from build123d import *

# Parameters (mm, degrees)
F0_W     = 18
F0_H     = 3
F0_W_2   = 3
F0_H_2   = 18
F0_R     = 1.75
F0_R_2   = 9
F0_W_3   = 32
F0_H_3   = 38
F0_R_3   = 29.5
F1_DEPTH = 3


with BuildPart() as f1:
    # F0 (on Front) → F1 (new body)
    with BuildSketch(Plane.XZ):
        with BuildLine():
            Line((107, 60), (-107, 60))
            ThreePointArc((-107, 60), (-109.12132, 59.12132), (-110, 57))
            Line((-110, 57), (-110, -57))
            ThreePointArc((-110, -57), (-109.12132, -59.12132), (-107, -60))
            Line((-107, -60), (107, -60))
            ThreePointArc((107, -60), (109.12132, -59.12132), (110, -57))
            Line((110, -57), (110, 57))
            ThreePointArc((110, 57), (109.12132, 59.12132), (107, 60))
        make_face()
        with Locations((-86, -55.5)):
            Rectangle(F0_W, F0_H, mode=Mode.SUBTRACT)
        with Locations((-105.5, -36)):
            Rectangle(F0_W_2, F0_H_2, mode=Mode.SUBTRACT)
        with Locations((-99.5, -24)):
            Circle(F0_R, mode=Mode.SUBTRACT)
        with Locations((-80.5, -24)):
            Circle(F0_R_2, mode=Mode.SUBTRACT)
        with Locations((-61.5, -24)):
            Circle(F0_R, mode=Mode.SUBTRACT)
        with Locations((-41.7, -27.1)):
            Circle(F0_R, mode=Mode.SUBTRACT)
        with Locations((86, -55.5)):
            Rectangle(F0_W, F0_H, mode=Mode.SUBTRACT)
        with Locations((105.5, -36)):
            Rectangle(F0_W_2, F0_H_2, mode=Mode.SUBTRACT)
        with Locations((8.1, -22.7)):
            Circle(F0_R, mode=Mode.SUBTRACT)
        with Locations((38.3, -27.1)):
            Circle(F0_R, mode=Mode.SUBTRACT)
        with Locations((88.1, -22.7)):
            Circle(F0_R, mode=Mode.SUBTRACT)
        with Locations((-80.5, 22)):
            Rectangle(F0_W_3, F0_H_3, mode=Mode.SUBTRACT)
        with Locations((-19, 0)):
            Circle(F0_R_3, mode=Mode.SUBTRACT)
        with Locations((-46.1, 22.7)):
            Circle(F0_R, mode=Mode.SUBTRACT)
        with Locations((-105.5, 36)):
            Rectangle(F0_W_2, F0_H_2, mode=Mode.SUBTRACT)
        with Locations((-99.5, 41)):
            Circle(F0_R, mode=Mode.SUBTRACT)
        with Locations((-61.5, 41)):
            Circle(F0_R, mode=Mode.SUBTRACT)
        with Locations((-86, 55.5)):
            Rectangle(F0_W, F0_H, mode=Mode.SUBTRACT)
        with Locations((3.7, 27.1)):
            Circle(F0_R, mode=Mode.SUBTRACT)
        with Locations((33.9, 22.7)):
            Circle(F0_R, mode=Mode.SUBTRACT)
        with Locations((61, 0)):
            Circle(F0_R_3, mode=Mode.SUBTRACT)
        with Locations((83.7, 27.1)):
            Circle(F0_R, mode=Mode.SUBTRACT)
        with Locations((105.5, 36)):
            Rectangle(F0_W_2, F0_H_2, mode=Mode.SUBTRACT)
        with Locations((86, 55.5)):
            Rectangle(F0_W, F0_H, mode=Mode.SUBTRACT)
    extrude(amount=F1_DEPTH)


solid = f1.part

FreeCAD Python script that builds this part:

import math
import FreeCAD as App
import Part
import Sketcher
Q = App.Units.Quantity


def add_polygon(sketch, points):
    """Adds a closed chain of lines whose ends are joined by coincident constraints."""
    first, n = sketch.GeometryCount, len(points)
    for a, b in zip(points, points[1:] + points[:1]):
        sketch.addGeometry(Part.LineSegment(App.Vector(*a, 0), App.Vector(*b, 0)), False)
    for i in range(n):
        sketch.addConstraint(Sketcher.Constraint("Coincident", first + i, 2, first + (i + 1) % n, 1))

doc = App.newDocument("Part")
params = doc.addObject("Spreadsheet::Sheet", "Params")
for row, (alias, value) in enumerate([
    ("sketch1_diameter", "18 mm"),
    ("sketch1_diameter2", "59 mm"),
    ("sketch1_radius", "3.000001 mm"),
    ("sketch1_diameter3", "3.5 mm"),
    ("sketch1_width", "214 mm"),
    ("pad1_length", "3 mm"),
], start=1):
    params.set(f"A{row}", alias)
    params.set(f"B{row}", "=" + value)
    params.setAlias(f"B{row}", alias)

body = doc.addObject("PartDesign::Body", "Body")

sketch1 = doc.addObject("Sketcher::SketchObject", "Sketch")
body.addObject(sketch1)
sketch1.AttachmentSupport = (doc.XZ_Plane, [""])
sketch1.MapMode = "FlatFace"
sketch1.addGeometry(Part.LineSegment(App.Vector(107, 60, 0), App.Vector(-107, 60, 0)), False)
sketch1.addGeometry(Part.ArcOfCircle(Part.Circle(App.Vector(-107, 57, 0), App.Vector(0, 0, 1), 3), math.radians(90), math.radians(180)), False)
sketch1.addGeometry(Part.LineSegment(App.Vector(-110, 57, 0), App.Vector(-110, -57, 0)), False)
sketch1.addGeometry(Part.ArcOfCircle(Part.Circle(App.Vector(-107, -57, 0), App.Vector(0, 0, 1), 3), math.radians(-180), math.radians(-90)), False)
sketch1.addGeometry(Part.LineSegment(App.Vector(-107, -60, 0), App.Vector(107, -60, 0)), False)
sketch1.addGeometry(Part.ArcOfCircle(Part.Circle(App.Vector(107, -57, 0), App.Vector(0, 0, 1), 3), math.radians(-90), math.radians(0)), False)
sketch1.addGeometry(Part.LineSegment(App.Vector(110, -57, 0), App.Vector(110, 57, 0)), False)
sketch1.addGeometry(Part.ArcOfCircle(Part.Circle(App.Vector(107, 57, 0), App.Vector(0, 0, 1), 3), math.radians(0), math.radians(90)), False)
add_polygon(sketch1, [(-77, -57), (-95, -57), (-95, -54), (-77, -54)])
add_polygon(sketch1, [(-104, -45), (-107, -45), (-107, -27), (-104, -27)])
sketch1.addGeometry(Part.Circle(App.Vector(-99.5, -24, 0), App.Vector(0, 0, 1), 1.8), False)
sketch1.addGeometry(Part.Circle(App.Vector(-80.5, -24, 0), App.Vector(0, 0, 1), 9), False)
sketch1.addGeometry(Part.Circle(App.Vector(-61.5, -24, 0), App.Vector(0, 0, 1), 1.8), False)
sketch1.addGeometry(Part.Circle(App.Vector(-41.7, -27.1, 0), App.Vector(0, 0, 1), 1.8), False)
add_polygon(sketch1, [(95, -57), (77, -57), (77, -54), (95, -54)])
add_polygon(sketch1, [(107, -45), (104, -45), (104, -27), (107, -27)])
sketch1.addGeometry(Part.Circle(App.Vector(8.1, -22.7, 0), App.Vector(0, 0, 1), 1.8), False)
sketch1.addGeometry(Part.Circle(App.Vector(38.3, -27.1, 0), App.Vector(0, 0, 1), 1.8), False)
sketch1.addGeometry(Part.Circle(App.Vector(88.1, -22.7, 0), App.Vector(0, 0, 1), 1.8), False)
add_polygon(sketch1, [(-64.5, 3), (-96.5, 3), (-96.5, 41), (-64.5, 41)])
sketch1.addGeometry(Part.Circle(App.Vector(-19, 0, 0), App.Vector(0, 0, 1), 29.5), False)
sketch1.addGeometry(Part.Circle(App.Vector(-46.1, 22.7, 0), App.Vector(0, 0, 1), 1.8), False)
add_polygon(sketch1, [(-104, 27), (-107, 27), (-107, 45), (-104, 45)])
sketch1.addGeometry(Part.Circle(App.Vector(-99.5, 41, 0), App.Vector(0, 0, 1), 1.8), False)
sketch1.addGeometry(Part.Circle(App.Vector(-61.5, 41, 0), App.Vector(0, 0, 1), 1.8), False)
add_polygon(sketch1, [(-77, 54), (-95, 54), (-95, 57), (-77, 57)])
sketch1.addGeometry(Part.Circle(App.Vector(3.7, 27.1, 0), App.Vector(0, 0, 1), 1.8), False)
sketch1.addGeometry(Part.Circle(App.Vector(33.9, 22.7, 0), App.Vector(0, 0, 1), 1.8), False)
sketch1.addGeometry(Part.Circle(App.Vector(61, 0, 0), App.Vector(0, 0, 1), 29.5), False)
sketch1.addGeometry(Part.Circle(App.Vector(83.7, 27.1, 0), App.Vector(0, 0, 1), 1.8), False)
add_polygon(sketch1, [(107, 27), (104, 27), (104, 45), (107, 45)])
add_polygon(sketch1, [(95, 54), (77, 54), (77, 57), (95, 57)])
sketch1.addConstraint(Sketcher.Constraint("Tangent", 0, 2, 1, 1))
sketch1.addConstraint(Sketcher.Constraint("Tangent", 1, 2, 2, 1))
sketch1.addConstraint(Sketcher.Constraint("Tangent", 2, 2, 3, 1))
sketch1.addConstraint(Sketcher.Constraint("Tangent", 3, 2, 4, 1))
sketch1.addConstraint(Sketcher.Constraint("Tangent", 4, 2, 5, 1))
sketch1.addConstraint(Sketcher.Constraint("Tangent", 5, 2, 6, 1))
sketch1.addConstraint(Sketcher.Constraint("Tangent", 6, 2, 7, 1))
sketch1.addConstraint(Sketcher.Constraint("Tangent", 7, 2, 0, 1))
sketch1.addConstraint(Sketcher.Constraint("Horizontal", 0))
sketch1.addConstraint(Sketcher.Constraint("Vertical", 2))
sketch1.addConstraint(Sketcher.Constraint("Horizontal", 4))
sketch1.addConstraint(Sketcher.Constraint("Vertical", 6))
sketch1.addConstraint(Sketcher.Constraint("Horizontal", 8))
sketch1.addConstraint(Sketcher.Constraint("Vertical", 9))
sketch1.addConstraint(Sketcher.Constraint("Horizontal", 10))
sketch1.addConstraint(Sketcher.Constraint("Vertical", 11))
sketch1.addConstraint(Sketcher.Constraint("Horizontal", 12))
sketch1.addConstraint(Sketcher.Constraint("Vertical", 13))
sketch1.addConstraint(Sketcher.Constraint("Horizontal", 14))
sketch1.addConstraint(Sketcher.Constraint("Vertical", 15))
sketch1.addConstraint(Sketcher.Constraint("Horizontal", 20))
sketch1.addConstraint(Sketcher.Constraint("Vertical", 21))
sketch1.addConstraint(Sketcher.Constraint("Horizontal", 22))
sketch1.addConstraint(Sketcher.Constraint("Vertical", 23))
sketch1.addConstraint(Sketcher.Constraint("Horizontal", 24))
sketch1.addConstraint(Sketcher.Constraint("Vertical", 25))
sketch1.addConstraint(Sketcher.Constraint("Horizontal", 26))
sketch1.addConstraint(Sketcher.Constraint("Vertical", 27))
sketch1.addConstraint(Sketcher.Constraint("Horizontal", 31))
sketch1.addConstraint(Sketcher.Constraint("Vertical", 32))
sketch1.addConstraint(Sketcher.Constraint("Horizontal", 33))
sketch1.addConstraint(Sketcher.Constraint("Vertical", 34))
sketch1.addConstraint(Sketcher.Constraint("Horizontal", 37))
sketch1.addConstraint(Sketcher.Constraint("Vertical", 38))
sketch1.addConstraint(Sketcher.Constraint("Horizontal", 39))
sketch1.addConstraint(Sketcher.Constraint("Vertical", 40))
sketch1.addConstraint(Sketcher.Constraint("Horizontal", 43))
sketch1.addConstraint(Sketcher.Constraint("Vertical", 44))
sketch1.addConstraint(Sketcher.Constraint("Horizontal", 45))
sketch1.addConstraint(Sketcher.Constraint("Vertical", 46))
sketch1.addConstraint(Sketcher.Constraint("Horizontal", 51))
sketch1.addConstraint(Sketcher.Constraint("Vertical", 52))
sketch1.addConstraint(Sketcher.Constraint("Horizontal", 53))
sketch1.addConstraint(Sketcher.Constraint("Vertical", 54))
sketch1.addConstraint(Sketcher.Constraint("Horizontal", 55))
sketch1.addConstraint(Sketcher.Constraint("Vertical", 56))
sketch1.addConstraint(Sketcher.Constraint("Horizontal", 57))
sketch1.addConstraint(Sketcher.Constraint("Vertical", 58))
sketch1.addConstraint(Sketcher.Constraint("Equal", 1, 3))
sketch1.addConstraint(Sketcher.Constraint("Equal", 3, 5))
sketch1.addConstraint(Sketcher.Constraint("Equal", 5, 7))
sketch1.addConstraint(Sketcher.Constraint("Equal", 16, 18))
sketch1.addConstraint(Sketcher.Constraint("Equal", 18, 19))
sketch1.addConstraint(Sketcher.Constraint("Equal", 19, 28))
sketch1.addConstraint(Sketcher.Constraint("Equal", 28, 29))
sketch1.addConstraint(Sketcher.Constraint("Equal", 29, 30))
sketch1.addConstraint(Sketcher.Constraint("Equal", 30, 36))
sketch1.addConstraint(Sketcher.Constraint("Equal", 36, 41))
sketch1.addConstraint(Sketcher.Constraint("Equal", 41, 42))
sketch1.addConstraint(Sketcher.Constraint("Equal", 42, 47))
sketch1.addConstraint(Sketcher.Constraint("Equal", 47, 48))
sketch1.addConstraint(Sketcher.Constraint("Equal", 35, 49))
sketch1.addConstraint(Sketcher.Constraint("Equal", 48, 50))
sketch1.addConstraint(Sketcher.Constraint("Symmetric", 1, 3, 5, 3, -1, 1))
sketch1.addConstraint(Sketcher.Constraint("Symmetric", 26, 2, 37, 2, -1, 1))
sketch1.addConstraint(Sketcher.Constraint("Symmetric", 24, 2, 39, 2, -1, 1))
sketch1.addConstraint(Sketcher.Constraint("Symmetric", 22, 2, 43, 2, -1, 1))
sketch1.addConstraint(Sketcher.Constraint("Symmetric", 20, 2, 45, 2, -1, 1))
sketch1.addConstraint(Sketcher.Constraint("Symmetric", 14, 2, 51, 2, -1, 1))
sketch1.addConstraint(Sketcher.Constraint("Symmetric", 12, 2, 53, 2, -1, 1))
sketch1.addConstraint(Sketcher.Constraint("Symmetric", 10, 2, 55, 2, -1, 1))
sketch1.addConstraint(Sketcher.Constraint("Symmetric", 8, 2, 57, 2, -1, 1))
sketch1.addConstraint(Sketcher.Constraint("Symmetric", 11, 2, 20, 2, -2))
sketch1.addConstraint(Sketcher.Constraint("Symmetric", 9, 2, 22, 2, -2))
sketch1.addConstraint(Sketcher.Constraint("Symmetric", 15, 2, 24, 2, -2))
sketch1.addConstraint(Sketcher.Constraint("Symmetric", 13, 2, 26, 2, -2))
sketch1.addConstraint(Sketcher.Constraint("PointOnObject", 35, 3, -1))
sketch1.addConstraint(Sketcher.Constraint("PointOnObject", 49, 3, -1))
sketch1.addConstraint(Sketcher.Constraint("Horizontal", 16, 3, 17, 3))
sketch1.addConstraint(Sketcher.Constraint("Horizontal", 17, 3, 18, 3))
sketch1.addConstraint(Sketcher.Constraint("Horizontal", 19, 3, 29, 3))
sketch1.addConstraint(Sketcher.Constraint("Horizontal", 28, 3, 30, 3))
sketch1.addConstraint(Sketcher.Constraint("Horizontal", 41, 3, 42, 3))
sketch1.addConstraint(Sketcher.Constraint("Horizontal", 36, 3, 48, 3))
sketch1.addConstraint(Sketcher.Constraint("Horizontal", 47, 3, 50, 3))
sketch1.addConstraint(Sketcher.Constraint("Horizontal", 5, 2, 8, 2))
sketch1.addConstraint(Sketcher.Constraint("Horizontal", 42, 3, 32, 2))
sketch1.addConstraint(Sketcher.Constraint("Vertical", 16, 3, 41, 3))
sketch1.addConstraint(Sketcher.Constraint("Vertical", 18, 3, 42, 3))
sketch1.addConstraint(Sketcher.Constraint("Vertical", 3, 2, 12, 2))
sketch1.addConstraint(Sketcher.Constraint("Equal", 53, 9))
sketch1.addConstraint(Sketcher.Constraint("Equal", 57, 13))
sketch1.addConstraint(Sketcher.Constraint("Diameter", 17, Q("18 mm")))
sketch1.addConstraint(Sketcher.Constraint("Diameter", 35, Q("59 mm")))
sketch1.addConstraint(Sketcher.Constraint("Radius", 1, Q("3.000001 mm")))
sketch1.addConstraint(Sketcher.Constraint("Diameter", 16, Q("3.5 mm")))
sketch1.addConstraint(Sketcher.Constraint("DistanceX", 0, 2, 0, 1, Q("214 mm")))
sketch1.addConstraint(Sketcher.Constraint("DistanceX", 8, 2, 8, 1, Q("18 mm")))
sketch1.addConstraint(Sketcher.Constraint("DistanceX", 12, 2, 12, 1, Q("3 mm")))
sketch1.addConstraint(Sketcher.Constraint("DistanceX", 31, 2, 31, 1, Q("32 mm")))
sketch1.addConstraint(Sketcher.Constraint("DistanceY", 2, 2, 2, 1, Q("114 mm")))
sketch1.addConstraint(Sketcher.Constraint("DistanceY", 32, 1, 32, 2, Q("38 mm")))
sketch1.addConstraint(Sketcher.Constraint("DistanceY", 16, 3, -1, 1, Q("24 mm")))
sketch1.addConstraint(Sketcher.Constraint("DistanceX", 35, 3, -1, 1, Q("19 mm")))
sketch1.addConstraint(Sketcher.Constraint("DistanceY", -1, 1, 41, 3, Q("41 mm")))
sketch1.addConstraint(Sketcher.Constraint("DistanceX", -1, 1, 49, 3, Q("61 mm")))
sketch1.addConstraint(Sketcher.Constraint("DistanceX", 8, 2, -1, 1, Q("95 mm")))
sketch1.addConstraint(Sketcher.Constraint("DistanceY", 12, 2, -1, 1, Q("45 mm")))
sketch1.addConstraint(Sketcher.Constraint("DistanceX", 16, 3, -1, 1, Q("99.5 mm")))
sketch1.addConstraint(Sketcher.Constraint("DistanceX", 17, 3, -1, 1, Q("80.5 mm")))
sketch1.addConstraint(Sketcher.Constraint("DistanceX", 18, 3, -1, 1, Q("61.5 mm")))
sketch1.addConstraint(Sketcher.Constraint("DistanceX", 19, 3, -1, 1, Q("41.7 mm")))
sketch1.addConstraint(Sketcher.Constraint("DistanceY", 19, 3, -1, 1, Q("27.1 mm")))
sketch1.addConstraint(Sketcher.Constraint("DistanceX", -1, 1, 28, 3, Q("8.1 mm")))
sketch1.addConstraint(Sketcher.Constraint("DistanceY", 28, 3, -1, 1, Q("22.7 mm")))
sketch1.addConstraint(Sketcher.Constraint("DistanceX", -1, 1, 29, 3, Q("38.3 mm")))
sketch1.addConstraint(Sketcher.Constraint("DistanceX", -1, 1, 30, 3, Q("88.1 mm")))
sketch1.addConstraint(Sketcher.Constraint("DistanceX", 36, 3, -1, 1, Q("46.1 mm")))
sketch1.addConstraint(Sketcher.Constraint("DistanceY", -1, 1, 36, 3, Q("22.7 mm")))
sketch1.addConstraint(Sketcher.Constraint("DistanceX", -1, 1, 47, 3, Q("3.7 mm")))
sketch1.addConstraint(Sketcher.Constraint("DistanceY", -1, 1, 47, 3, Q("27.1 mm")))
sketch1.addConstraint(Sketcher.Constraint("DistanceX", -1, 1, 48, 3, Q("33.9 mm")))
sketch1.addConstraint(Sketcher.Constraint("DistanceX", -1, 1, 50, 3, Q("83.7 mm")))
sketch1.addConstraint(Sketcher.Constraint("DistanceX", 31, 2, -1, 1, Q("96.5 mm")))
sketch1.setExpression("Constraints[128]", "Params.sketch1_diameter")
sketch1.setExpression("Constraints[129]", "Params.sketch1_diameter2")
sketch1.setExpression("Constraints[130]", "Params.sketch1_radius")
sketch1.setExpression("Constraints[131]", "Params.sketch1_diameter3")
sketch1.setExpression("Constraints[132]", "Params.sketch1_width")
pad1 = doc.addObject("PartDesign::Pad", "Pad")
body.addObject(pad1)
pad1.Profile = sketch1
pad1.setExpression("Length", "Params.pad1_length")

doc.recompute()
